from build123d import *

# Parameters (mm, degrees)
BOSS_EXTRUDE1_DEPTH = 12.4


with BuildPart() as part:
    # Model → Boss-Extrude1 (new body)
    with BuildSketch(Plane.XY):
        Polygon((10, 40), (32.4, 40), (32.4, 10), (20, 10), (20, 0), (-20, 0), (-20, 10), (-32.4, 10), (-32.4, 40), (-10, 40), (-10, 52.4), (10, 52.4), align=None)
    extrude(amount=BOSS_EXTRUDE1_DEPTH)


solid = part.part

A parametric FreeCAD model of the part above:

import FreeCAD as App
import Part
import Sketcher


def add_polygon(sketch, points):
    """Adds a closed chain of lines whose ends are joined by coincident constraints."""
    first, n = sketch.GeometryCount, len(points)
    for a, b in zip(points, points[1:] + points[:1]):
        sketch.addGeometry(Part.LineSegment(App.Vector(*a, 0), App.Vector(*b, 0)), False)
    for i in range(n):
        sketch.addConstraint(Sketcher.Constraint("Coincident", first + i, 2, first + (i + 1) % n, 1))

doc = App.newDocument("Part")
body = doc.addObject("PartDesign::Body", "Body")

# Sketch on XY plane
sketch1 = body.newObject("Sketcher::SketchObject", "Sketch")
sketch1.AttachmentSupport = (doc.getObject("XY_Plane"), [""])
sketch1.MapMode = "FlatFace"
add_polygon(sketch1, [(32.4, 40), (10, 40), (10, 52.4), (-10, 52.4), (-10, 40), (-32.4, 40), (-32.4, 10), (-20, 10), (-20, 0), (20, 0), (20, 10), (32.4, 10)])  # lines 0-11
sketch1.addConstraint([
    Sketcher.Constraint("Horizontal", 0),
    Sketcher.Constraint("Vertical", 1),
    Sketcher.Constraint("Horizontal", 2),
    Sketcher.Constraint("Vertical", 3),
    Sketcher.Constraint("Horizontal", 4),
    Sketcher.Constraint("Vertical", 5),
    Sketcher.Constraint("Horizontal", 6),
    Sketcher.Constraint("Vertical", 7),
    Sketcher.Constraint("Horizontal", 8),
    Sketcher.Constraint("Vertical", 9),
    Sketcher.Constraint("Horizontal", 10),
    Sketcher.Constraint("Vertical", 11),
    Sketcher.Constraint("Symmetric", 7, 2, 8, 2, -1, 1),
    Sketcher.Constraint("Symmetric", 0, 2, 3, 2, -2),
    Sketcher.Constraint("Symmetric", 5, 2, 10, 2, -2),
    Sketcher.Constraint("Equal", 10, 1),
    Sketcher.Constraint("DistanceX", 2, 2, 2, 1, 20.0),
    Sketcher.Constraint("DistanceX", 8, 1, 8, 2, 40.0),
    Sketcher.Constraint("DistanceY", 5, 2, 5, 1, 30.0),
    Sketcher.Constraint("DistanceY", 7, 2, 7, 1, 10.0),
    Sketcher.Constraint("DistanceX", 0, 2, 0, 1, 22.4),
])
pad1 = body.newObject("PartDesign::Pad", "Pad")
pad1.Profile = sketch1
pad1.Length = 12.4

doc.recompute()
